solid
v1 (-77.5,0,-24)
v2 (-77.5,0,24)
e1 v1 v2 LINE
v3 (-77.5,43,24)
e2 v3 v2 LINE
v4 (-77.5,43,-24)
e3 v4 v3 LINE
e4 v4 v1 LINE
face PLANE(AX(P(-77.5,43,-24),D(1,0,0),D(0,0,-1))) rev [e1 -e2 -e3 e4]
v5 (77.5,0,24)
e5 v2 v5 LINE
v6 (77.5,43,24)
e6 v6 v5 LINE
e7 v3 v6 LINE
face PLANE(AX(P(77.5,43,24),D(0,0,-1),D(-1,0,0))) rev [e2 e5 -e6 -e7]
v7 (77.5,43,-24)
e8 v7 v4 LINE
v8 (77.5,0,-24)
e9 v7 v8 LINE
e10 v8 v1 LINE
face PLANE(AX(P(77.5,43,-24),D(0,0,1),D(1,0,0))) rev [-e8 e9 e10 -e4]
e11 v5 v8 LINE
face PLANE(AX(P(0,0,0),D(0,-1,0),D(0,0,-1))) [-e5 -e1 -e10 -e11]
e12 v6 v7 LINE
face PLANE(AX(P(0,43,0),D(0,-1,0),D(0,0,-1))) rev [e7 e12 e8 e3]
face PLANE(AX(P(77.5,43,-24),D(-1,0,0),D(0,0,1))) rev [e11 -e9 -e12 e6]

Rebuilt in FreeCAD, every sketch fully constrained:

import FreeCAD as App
import Part
import Sketcher

doc = App.newDocument("Part")
body = doc.addObject("PartDesign::Body", "Body")

# Sketch on XZ plane
sketch1 = body.newObject("Sketcher::SketchObject", "Sketch")
sketch1.AttachmentSupport = (doc.getObject("XZ_Plane"), [""])
sketch1.MapMode = "FlatFace"
sketch1.addGeometry([
    Part.LineSegment(App.Vector(-78, -24, 0), App.Vector(-78, 24, 0)),
    Part.LineSegment(App.Vector(-78, 24, 0), App.Vector(78, 24, 0)),
    Part.LineSegment(App.Vector(78, 24, 0), App.Vector(78, -24, 0)),
    Part.LineSegment(App.Vector(78, -24, 0), App.Vector(-78, -24, 0)),
], False)
sketch1.addConstraint([
    Sketcher.Constraint("Coincident", 0, 2, 1, 1),
    Sketcher.Constraint("Coincident", 1, 2, 2, 1),
    Sketcher.Constraint("Coincident", 2, 2, 3, 1),
    Sketcher.Constraint("Coincident", 3, 2, 0, 1),
    Sketcher.Constraint("Vertical", 0),
    Sketcher.Constraint("Horizontal", 1),
    Sketcher.Constraint("Vertical", 2),
    Sketcher.Constraint("Horizontal", 3),
    Sketcher.Constraint("Symmetric", 0, 2, 2, 2, -1, 1),
    Sketcher.Constraint("DistanceX", 1, 1, 1, 2, 155.0),
    Sketcher.Constraint("DistanceY", 0, 1, 0, 2, 48.0),
])
pad1 = body.newObject("PartDesign::Pad", "Pad")
pad1.Profile = sketch1
pad1.Length = 43
pad1.Reversed = True

doc.recompute()
